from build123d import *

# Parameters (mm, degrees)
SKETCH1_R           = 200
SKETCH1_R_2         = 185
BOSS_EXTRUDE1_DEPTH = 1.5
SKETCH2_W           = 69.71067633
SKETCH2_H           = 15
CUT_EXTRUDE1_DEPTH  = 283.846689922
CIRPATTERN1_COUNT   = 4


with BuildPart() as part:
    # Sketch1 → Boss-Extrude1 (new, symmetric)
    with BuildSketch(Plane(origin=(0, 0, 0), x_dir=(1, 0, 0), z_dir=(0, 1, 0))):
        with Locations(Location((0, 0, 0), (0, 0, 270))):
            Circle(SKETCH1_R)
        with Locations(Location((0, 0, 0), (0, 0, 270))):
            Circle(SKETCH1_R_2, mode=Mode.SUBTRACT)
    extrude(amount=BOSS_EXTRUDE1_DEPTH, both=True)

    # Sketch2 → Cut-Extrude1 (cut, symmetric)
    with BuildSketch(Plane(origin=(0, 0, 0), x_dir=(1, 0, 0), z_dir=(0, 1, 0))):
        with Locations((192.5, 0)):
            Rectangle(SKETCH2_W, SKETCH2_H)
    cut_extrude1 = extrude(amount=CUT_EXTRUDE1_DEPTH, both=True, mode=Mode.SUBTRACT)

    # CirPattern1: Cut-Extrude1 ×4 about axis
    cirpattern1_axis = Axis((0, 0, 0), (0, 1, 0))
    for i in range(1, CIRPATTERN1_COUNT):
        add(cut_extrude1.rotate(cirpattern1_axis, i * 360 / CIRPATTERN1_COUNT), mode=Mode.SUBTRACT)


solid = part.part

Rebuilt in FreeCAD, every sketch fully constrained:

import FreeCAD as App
import Part
import Sketcher
from FreeCAD import Vector

doc = App.newDocument("Part")
body = doc.addObject("PartDesign::Body", "Body")
body.AllowCompound = True

# Sketch on XZ plane
sketch1 = body.newObject("Sketcher::SketchObject", "Sketch")
sketch1.AttachmentSupport = (doc.getObject("XZ_Plane"), [""])
sketch1.MapMode = "FlatFace"
sketch1.addGeometry([
    Part.Circle(Vector(0, 0, 0), Vector(0, 0, 1), 200),
    Part.Circle(Vector(0, 0, 0), Vector(0, 0, 1), 185),
], False)
sketch1.addConstraint([
    Sketcher.Constraint("Coincident", 0, 3, -1, 1),
    Sketcher.Constraint("Coincident", 1, 3, -1, 1),
    Sketcher.Constraint("Diameter", 0, 400.0),
    Sketcher.Constraint("Diameter", 1, 370.0),
])
pad1 = body.newObject("PartDesign::Pad", "Pad")
pad1.Profile = sketch1
pad1.Length = 3
pad1.Midplane = True

# Sketch on XZ plane
sketch2 = body.newObject("Sketcher::SketchObject", "Sketch001")
sketch2.AttachmentSupport = (doc.getObject("XZ_Plane"), [""])
sketch2.MapMode = "FlatFace"
sketch2.addGeometry([
    Part.LineSegment(Vector(158, -8, 0), Vector(158, 8, 0)),
    Part.LineSegment(Vector(158, 8, 0), Vector(227, 8, 0)),
    Part.LineSegment(Vector(227, 8, 0), Vector(227, -8, 0)),
    Part.LineSegment(Vector(227, -8, 0), Vector(158, -8, 0)),
], False)
sketch2.addConstraint([
    Sketcher.Constraint("Coincident", 0, 2, 1, 1),
    Sketcher.Constraint("Coincident", 1, 2, 2, 1),
    Sketcher.Constraint("Coincident", 2, 2, 3, 1),
    Sketcher.Constraint("Coincident", 3, 2, 0, 1),
    Sketcher.Constraint("Vertical", 0),
    Sketcher.Constraint("Horizontal", 1),
    Sketcher.Constraint("Vertical", 2),
    Sketcher.Constraint("Horizontal", 3),
    Sketcher.Constraint("DistanceY", 0, 1, 0, 2, 15.0),
    Sketcher.Constraint("DistanceY", -1, 1, 0, 2, 7.5),
    Sketcher.Constraint("DistanceX", 1, 1, 1, 2, 69.710676),
    Sketcher.Constraint("DistanceX", -1, 1, 0, 2, 157.644662),
])
pocket1 = body.newObject("PartDesign::Pocket", "Pocket")
pocket1.Profile = sketch2
pocket1.Length = 567.69338
pocket1.Midplane = True
doc.recompute()

polarpattern = body.newObject("PartDesign::PolarPattern", "PolarPattern")
polarpattern.Originals = [pocket1]
polarpattern.Axis = (doc.getObject("Y_Axis"), [""])
polarpattern.Angle = 360
polarpattern.Occurrences = 4
body.Tip = polarpattern

doc.recompute()
